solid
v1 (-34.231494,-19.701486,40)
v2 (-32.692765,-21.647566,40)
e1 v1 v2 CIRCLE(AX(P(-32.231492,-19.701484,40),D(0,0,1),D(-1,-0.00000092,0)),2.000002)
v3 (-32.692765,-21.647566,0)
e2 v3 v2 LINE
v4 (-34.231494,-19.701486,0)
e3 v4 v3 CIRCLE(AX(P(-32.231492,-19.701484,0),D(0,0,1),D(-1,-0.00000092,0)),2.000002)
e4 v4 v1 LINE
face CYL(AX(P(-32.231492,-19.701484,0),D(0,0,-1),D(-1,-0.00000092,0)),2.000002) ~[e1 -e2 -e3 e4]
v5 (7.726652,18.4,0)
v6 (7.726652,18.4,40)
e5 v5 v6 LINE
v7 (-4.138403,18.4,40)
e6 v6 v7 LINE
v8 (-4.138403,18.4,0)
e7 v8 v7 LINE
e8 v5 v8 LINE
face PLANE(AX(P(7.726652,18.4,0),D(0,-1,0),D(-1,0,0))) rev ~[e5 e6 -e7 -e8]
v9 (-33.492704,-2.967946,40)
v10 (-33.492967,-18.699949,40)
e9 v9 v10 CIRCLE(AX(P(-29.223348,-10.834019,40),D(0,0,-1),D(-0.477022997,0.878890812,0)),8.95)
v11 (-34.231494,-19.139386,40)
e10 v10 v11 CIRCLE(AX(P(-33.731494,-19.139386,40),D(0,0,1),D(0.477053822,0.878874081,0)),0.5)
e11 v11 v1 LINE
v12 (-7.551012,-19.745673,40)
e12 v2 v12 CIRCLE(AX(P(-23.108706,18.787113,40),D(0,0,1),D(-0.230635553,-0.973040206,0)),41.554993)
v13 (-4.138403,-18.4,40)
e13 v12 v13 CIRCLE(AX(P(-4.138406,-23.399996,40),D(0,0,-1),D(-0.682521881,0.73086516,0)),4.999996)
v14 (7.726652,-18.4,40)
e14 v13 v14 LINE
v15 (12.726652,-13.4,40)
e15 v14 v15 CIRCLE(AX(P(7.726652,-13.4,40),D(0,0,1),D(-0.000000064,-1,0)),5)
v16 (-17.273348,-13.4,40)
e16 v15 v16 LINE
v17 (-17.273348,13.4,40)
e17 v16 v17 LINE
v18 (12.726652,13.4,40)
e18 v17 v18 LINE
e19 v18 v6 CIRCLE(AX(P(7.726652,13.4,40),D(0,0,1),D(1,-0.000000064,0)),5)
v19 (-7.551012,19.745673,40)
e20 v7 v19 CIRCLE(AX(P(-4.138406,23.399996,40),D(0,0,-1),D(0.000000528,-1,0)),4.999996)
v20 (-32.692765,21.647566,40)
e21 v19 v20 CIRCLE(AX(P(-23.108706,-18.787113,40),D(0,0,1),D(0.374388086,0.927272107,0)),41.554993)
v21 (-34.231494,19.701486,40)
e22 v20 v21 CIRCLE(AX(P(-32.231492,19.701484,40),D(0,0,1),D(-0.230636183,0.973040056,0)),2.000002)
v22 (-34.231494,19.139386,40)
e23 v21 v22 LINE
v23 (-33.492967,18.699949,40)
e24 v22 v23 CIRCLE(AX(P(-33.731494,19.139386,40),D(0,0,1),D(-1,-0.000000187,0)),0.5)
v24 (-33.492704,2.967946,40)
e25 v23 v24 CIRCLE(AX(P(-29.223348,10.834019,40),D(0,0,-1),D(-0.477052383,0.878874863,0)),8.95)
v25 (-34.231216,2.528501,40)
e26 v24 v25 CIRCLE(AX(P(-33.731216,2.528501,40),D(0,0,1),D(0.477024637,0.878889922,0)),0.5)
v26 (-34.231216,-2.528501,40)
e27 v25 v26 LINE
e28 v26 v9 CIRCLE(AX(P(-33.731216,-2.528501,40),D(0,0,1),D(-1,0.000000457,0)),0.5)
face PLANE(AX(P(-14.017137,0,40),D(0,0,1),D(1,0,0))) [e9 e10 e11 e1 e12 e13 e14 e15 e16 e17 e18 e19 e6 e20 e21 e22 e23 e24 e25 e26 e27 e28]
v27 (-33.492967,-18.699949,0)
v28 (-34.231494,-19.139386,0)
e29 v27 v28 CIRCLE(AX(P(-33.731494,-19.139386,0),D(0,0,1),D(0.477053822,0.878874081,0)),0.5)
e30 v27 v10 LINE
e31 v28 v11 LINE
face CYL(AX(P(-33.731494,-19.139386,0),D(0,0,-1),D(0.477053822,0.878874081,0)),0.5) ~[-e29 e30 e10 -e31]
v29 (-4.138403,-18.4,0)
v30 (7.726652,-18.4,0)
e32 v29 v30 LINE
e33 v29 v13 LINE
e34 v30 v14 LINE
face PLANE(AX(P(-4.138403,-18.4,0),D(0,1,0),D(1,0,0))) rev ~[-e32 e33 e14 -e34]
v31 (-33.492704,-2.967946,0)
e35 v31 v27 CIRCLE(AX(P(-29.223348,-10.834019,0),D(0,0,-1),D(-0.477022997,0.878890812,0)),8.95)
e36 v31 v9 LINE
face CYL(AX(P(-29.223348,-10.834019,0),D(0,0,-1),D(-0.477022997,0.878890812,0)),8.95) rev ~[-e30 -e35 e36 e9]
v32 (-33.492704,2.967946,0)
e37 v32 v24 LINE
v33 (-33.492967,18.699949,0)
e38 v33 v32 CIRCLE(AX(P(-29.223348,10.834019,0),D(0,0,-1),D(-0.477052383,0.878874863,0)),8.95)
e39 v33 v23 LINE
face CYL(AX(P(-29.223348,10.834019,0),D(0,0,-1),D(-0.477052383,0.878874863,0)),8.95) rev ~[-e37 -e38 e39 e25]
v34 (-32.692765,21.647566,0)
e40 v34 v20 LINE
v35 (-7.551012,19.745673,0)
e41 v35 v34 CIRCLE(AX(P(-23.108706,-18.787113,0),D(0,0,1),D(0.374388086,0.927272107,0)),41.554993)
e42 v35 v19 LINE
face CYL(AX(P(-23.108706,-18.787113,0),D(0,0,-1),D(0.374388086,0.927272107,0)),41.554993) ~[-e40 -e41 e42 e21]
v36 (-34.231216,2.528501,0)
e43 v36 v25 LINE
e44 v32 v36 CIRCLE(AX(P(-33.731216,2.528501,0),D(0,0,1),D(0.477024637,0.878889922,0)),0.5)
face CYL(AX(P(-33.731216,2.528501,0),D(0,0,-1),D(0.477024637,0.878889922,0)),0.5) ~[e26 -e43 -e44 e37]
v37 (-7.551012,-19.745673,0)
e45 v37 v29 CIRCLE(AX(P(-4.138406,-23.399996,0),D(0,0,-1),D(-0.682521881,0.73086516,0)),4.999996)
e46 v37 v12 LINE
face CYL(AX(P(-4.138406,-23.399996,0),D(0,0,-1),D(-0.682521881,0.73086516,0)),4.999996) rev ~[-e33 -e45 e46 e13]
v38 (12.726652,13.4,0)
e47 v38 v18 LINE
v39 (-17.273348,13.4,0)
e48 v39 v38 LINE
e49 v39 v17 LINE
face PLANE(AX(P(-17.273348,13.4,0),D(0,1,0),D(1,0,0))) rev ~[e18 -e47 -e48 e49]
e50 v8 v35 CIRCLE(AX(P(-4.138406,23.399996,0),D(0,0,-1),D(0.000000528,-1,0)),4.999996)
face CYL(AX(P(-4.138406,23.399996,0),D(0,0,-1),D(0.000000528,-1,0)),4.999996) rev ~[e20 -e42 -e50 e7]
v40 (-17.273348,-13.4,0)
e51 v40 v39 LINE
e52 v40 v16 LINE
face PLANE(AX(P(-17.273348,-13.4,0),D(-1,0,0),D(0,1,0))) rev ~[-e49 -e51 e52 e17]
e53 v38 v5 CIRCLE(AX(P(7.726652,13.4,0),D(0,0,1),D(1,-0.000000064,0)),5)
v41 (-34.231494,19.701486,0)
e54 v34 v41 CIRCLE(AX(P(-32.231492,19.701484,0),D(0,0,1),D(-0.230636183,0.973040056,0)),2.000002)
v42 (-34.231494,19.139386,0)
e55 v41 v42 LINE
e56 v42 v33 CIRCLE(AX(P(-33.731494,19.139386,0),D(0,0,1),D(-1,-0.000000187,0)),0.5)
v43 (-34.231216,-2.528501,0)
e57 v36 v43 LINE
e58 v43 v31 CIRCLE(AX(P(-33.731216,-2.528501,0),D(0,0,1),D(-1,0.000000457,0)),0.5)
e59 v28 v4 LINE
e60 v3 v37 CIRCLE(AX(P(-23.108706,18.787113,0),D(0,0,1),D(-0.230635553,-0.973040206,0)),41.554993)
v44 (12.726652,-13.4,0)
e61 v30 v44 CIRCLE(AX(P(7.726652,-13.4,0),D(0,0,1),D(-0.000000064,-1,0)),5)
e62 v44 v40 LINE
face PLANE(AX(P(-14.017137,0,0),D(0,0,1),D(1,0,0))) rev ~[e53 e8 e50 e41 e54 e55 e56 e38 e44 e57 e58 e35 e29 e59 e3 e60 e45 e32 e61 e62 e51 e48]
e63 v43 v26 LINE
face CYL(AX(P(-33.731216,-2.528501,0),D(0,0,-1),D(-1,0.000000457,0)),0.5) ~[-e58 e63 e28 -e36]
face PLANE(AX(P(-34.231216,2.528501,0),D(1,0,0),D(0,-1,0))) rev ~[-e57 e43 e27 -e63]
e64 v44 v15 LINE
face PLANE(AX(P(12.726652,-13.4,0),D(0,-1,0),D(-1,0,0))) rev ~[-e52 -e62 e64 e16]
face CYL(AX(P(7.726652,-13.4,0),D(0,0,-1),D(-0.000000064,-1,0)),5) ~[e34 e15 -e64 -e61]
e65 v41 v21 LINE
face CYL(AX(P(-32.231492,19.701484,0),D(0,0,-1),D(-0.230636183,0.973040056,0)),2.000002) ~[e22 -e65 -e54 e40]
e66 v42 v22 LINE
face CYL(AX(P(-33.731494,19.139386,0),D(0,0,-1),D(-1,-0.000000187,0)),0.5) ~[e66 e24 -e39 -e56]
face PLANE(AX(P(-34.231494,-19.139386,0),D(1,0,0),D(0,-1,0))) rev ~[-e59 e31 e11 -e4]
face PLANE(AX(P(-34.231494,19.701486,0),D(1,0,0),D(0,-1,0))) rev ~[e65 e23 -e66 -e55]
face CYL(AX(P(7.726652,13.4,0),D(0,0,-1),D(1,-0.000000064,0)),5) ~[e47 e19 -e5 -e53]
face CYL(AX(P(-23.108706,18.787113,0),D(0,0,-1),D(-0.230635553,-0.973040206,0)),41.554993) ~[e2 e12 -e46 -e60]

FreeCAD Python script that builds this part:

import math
import FreeCAD as App
import Part
import Sketcher
Q = App.Units.Quantity

doc = App.newDocument("Part")
body = doc.addObject("PartDesign::Body", "Body")

# Sketch on XY plane
sketch1 = body.newObject("Sketcher::SketchObject", "Sketch")
sketch1.AttachmentSupport = (doc.getObject("XY_Plane"), [""])
sketch1.MapMode = "FlatFace"
sketch1.addGeometry([
    Part.LineSegment(App.Vector(-17.273348, -13.4, 0), App.Vector(-17.273348, 13.4, 0)),  # 0
    Part.LineSegment(App.Vector(-17.273348, 13.4, 0), App.Vector(12.726652, 13.4, 0)),  # 1
    Part.ArcOfCircle(Part.Circle(App.Vector(7.726652, 13.4, 0), App.Vector(0, 0, 1), 5), math.radians(-0.000004), math.radians(90.000004)),  # 2
    Part.LineSegment(App.Vector(7.726652, 18.4, 0), App.Vector(-4.138403, 18.4, 0)),  # 3
    Part.ArcOfCircle(Part.Circle(App.Vector(-4.138406, 23.399996, 0), App.Vector(0, 0, 1), 4.999996), math.radians(-133.041027), math.radians(-89.99997)),  # 4
    Part.ArcOfCircle(Part.Circle(App.Vector(-23.108706, -18.787113, 0), App.Vector(0, 0, 1), 41.554993), math.radians(68.013502), math.radians(103.334492)),  # 5
    Part.ArcOfCircle(Part.Circle(App.Vector(-32.231492, 19.701484, 0), App.Vector(0, 0, 1), 2.000002), math.radians(103.334529), math.radians(179.999947)),  # 6
    Part.LineSegment(App.Vector(-34.231494, 19.701486, 0), App.Vector(-34.231494, 19.139386, 0)),  # 7
    Part.ArcOfCircle(Part.Circle(App.Vector(-33.731494, 19.139386, 0), App.Vector(0, 0, 1), 0.5), math.radians(-179.999989), math.radians(-61.506841)),  # 8
    Part.ArcOfCircle(Part.Circle(App.Vector(-29.223348, 10.834019, 0), App.Vector(0, 0, 1), 8.95), math.radians(-118.491149), math.radians(118.493065)),  # 9
    Part.ArcOfCircle(Part.Circle(App.Vector(-33.731216, 2.528501, 0), App.Vector(0, 0, 1), 0.5), math.radians(61.508744), math.radians(180.000026)),  # 10
    Part.LineSegment(App.Vector(-34.231216, 2.528501, 0), App.Vector(-34.231216, -2.528501, 0)),  # 11
    Part.ArcOfCircle(Part.Circle(App.Vector(-33.731216, -2.528501, 0), App.Vector(0, 0, 1), 0.5), math.radians(179.999974), math.radians(298.491256)),  # 12
    Part.ArcOfCircle(Part.Circle(App.Vector(-29.223348, -10.834019, 0), App.Vector(0, 0, 1), 8.95), math.radians(-118.493065), math.radians(118.491149)),  # 13
    Part.ArcOfCircle(Part.Circle(App.Vector(-33.731494, -19.139386, 0), App.Vector(0, 0, 1), 0.5), math.radians(61.506841), math.radians(179.999989)),  # 14
    Part.LineSegment(App.Vector(-34.231494, -19.139386, 0), App.Vector(-34.231494, -19.701486, 0)),  # 15
    Part.ArcOfCircle(Part.Circle(App.Vector(-32.231492, -19.701484, 0), App.Vector(0, 0, 1), 2.000002), math.radians(-179.999947), math.radians(-103.334529)),  # 16
    Part.ArcOfCircle(Part.Circle(App.Vector(-23.108706, 18.787113, 0), App.Vector(0, 0, 1), 41.554993), math.radians(-103.334492), math.radians(-68.013502)),  # 17
    Part.ArcOfCircle(Part.Circle(App.Vector(-4.138406, -23.399996, 0), App.Vector(0, 0, 1), 4.999996), math.radians(89.99997), math.radians(133.041027)),  # 18
    Part.LineSegment(App.Vector(-4.138403, -18.4, 0), App.Vector(7.726652, -18.4, 0)),  # 19
    Part.ArcOfCircle(Part.Circle(App.Vector(7.726652, -13.4, 0), App.Vector(0, 0, 1), 5), math.radians(-90.000004), math.radians(0.000004)),  # 20
    Part.LineSegment(App.Vector(12.726652, -13.4, 0), App.Vector(-17.273348, -13.4, 0)),  # 21
], False)
sketch1.addConstraint([
    Sketcher.Constraint("Coincident", 0, 2, 1, 1),
    Sketcher.Constraint("Coincident", 1, 2, 2, 1),
    Sketcher.Constraint("Tangent", 2, 2, 3, 1),
    Sketcher.Constraint("Tangent", 3, 2, 4, 2),
    Sketcher.Constraint("Coincident", 4, 1, 5, 1),
    Sketcher.Constraint("Tangent", 5, 2, 6, 1),
    Sketcher.Constraint("Tangent", 6, 2, 7, 1),
    Sketcher.Constraint("Tangent", 7, 2, 8, 1),
    Sketcher.Constraint("Tangent", 8, 2, 9, 2),
    Sketcher.Constraint("Tangent", 9, 1, 10, 1),
    Sketcher.Constraint("Tangent", 10, 2, 11, 1),
    Sketcher.Constraint("Tangent", 11, 2, 12, 1),
    Sketcher.Constraint("Tangent", 12, 2, 13, 2),
    Sketcher.Constraint("Tangent", 13, 1, 14, 1),
    Sketcher.Constraint("Tangent", 14, 2, 15, 1),
    Sketcher.Constraint("Tangent", 15, 2, 16, 1),
    Sketcher.Constraint("Tangent", 16, 2, 17, 1),
    Sketcher.Constraint("Coincident", 17, 2, 18, 2),
    Sketcher.Constraint("Tangent", 18, 1, 19, 1),
    Sketcher.Constraint("Tangent", 19, 2, 20, 1),
    Sketcher.Constraint("Coincident", 20, 2, 21, 1),
    Sketcher.Constraint("Coincident", 21, 2, 0, 1),
    Sketcher.Constraint("Vertical", 0),
    Sketcher.Constraint("Horizontal", 1),
    Sketcher.Constraint("Horizontal", 3),
    Sketcher.Constraint("Vertical", 7),
    Sketcher.Constraint("Vertical", 11),
    Sketcher.Constraint("Vertical", 15),
    Sketcher.Constraint("Horizontal", 19),
    Sketcher.Constraint("Horizontal", 21),
    Sketcher.Constraint("Equal", 8, 10),
    Sketcher.Constraint("Equal", 10, 12),
    Sketcher.Constraint("Equal", 9, 13),
    Sketcher.Constraint("Equal", 12, 14),
    Sketcher.Constraint("Equal", 6, 16),
    Sketcher.Constraint("Equal", 5, 17),
    Sketcher.Constraint("Equal", 4, 18),
    Sketcher.Constraint("Equal", 2, 20),
    Sketcher.Constraint("Symmetric", 9, 3, 13, 3, -1),
    Sketcher.Constraint("Symmetric", 6, 3, 16, 3, -1),
    Sketcher.Constraint("Symmetric", 4, 3, 18, 3, -1),
    Sketcher.Constraint("Symmetric", 1, 2, 20, 2, -1),
    Sketcher.Constraint("Horizontal", 2, 3, 0, 2),
    Sketcher.Constraint("Vertical", 5, 3, 17, 3),
    Sketcher.Constraint("Radius", 2, Q("5 mm")),
    Sketcher.Constraint("Radius", 6, Q("2.000002 mm")),
    Sketcher.Constraint("Radius", 8, Q("0.5 mm")),
    Sketcher.Constraint("DistanceX", 1, 1, 1, 2, Q("30 mm")),
    Sketcher.Constraint("Radius", 9, Q("8.95 mm")),
    Sketcher.Constraint("DistanceY", 0, 1, 0, 2, Q("26.8 mm")),
    Sketcher.Constraint("DistanceY", 11, 2, 11, 1, Q("5.057002 mm")),
    Sketcher.Constraint("DistanceX", 9, 3, 2, 3, Q("36.95 mm")),
    Sketcher.Constraint("DistanceY", 7, 2, 7, 1, Q("0.5621 mm")),
    Sketcher.Constraint("Radius", 4, Q("4.999996 mm")),
    Sketcher.Constraint("Radius", 5, Q("41.554993 mm")),
    Sketcher.Constraint("DistanceX", 5, 3, 4, 3, Q("18.970301 mm")),
    Sketcher.Constraint("DistanceY", 5, 3, 8, 3, Q("37.926499 mm")),
    Sketcher.Constraint("DistanceX", 3, 2, 3, 1, Q("11.865055 mm")),
    Sketcher.Constraint("DistanceX", 9, 3, -1, 1, Q("29.223348 mm")),
    Sketcher.Constraint("DistanceY", -1, 1, 9, 3, Q("10.834019 mm")),
])
pad1 = body.newObject("PartDesign::Pad", "Pad")
pad1.Profile = sketch1
pad1.Length = 40

doc.recompute()
